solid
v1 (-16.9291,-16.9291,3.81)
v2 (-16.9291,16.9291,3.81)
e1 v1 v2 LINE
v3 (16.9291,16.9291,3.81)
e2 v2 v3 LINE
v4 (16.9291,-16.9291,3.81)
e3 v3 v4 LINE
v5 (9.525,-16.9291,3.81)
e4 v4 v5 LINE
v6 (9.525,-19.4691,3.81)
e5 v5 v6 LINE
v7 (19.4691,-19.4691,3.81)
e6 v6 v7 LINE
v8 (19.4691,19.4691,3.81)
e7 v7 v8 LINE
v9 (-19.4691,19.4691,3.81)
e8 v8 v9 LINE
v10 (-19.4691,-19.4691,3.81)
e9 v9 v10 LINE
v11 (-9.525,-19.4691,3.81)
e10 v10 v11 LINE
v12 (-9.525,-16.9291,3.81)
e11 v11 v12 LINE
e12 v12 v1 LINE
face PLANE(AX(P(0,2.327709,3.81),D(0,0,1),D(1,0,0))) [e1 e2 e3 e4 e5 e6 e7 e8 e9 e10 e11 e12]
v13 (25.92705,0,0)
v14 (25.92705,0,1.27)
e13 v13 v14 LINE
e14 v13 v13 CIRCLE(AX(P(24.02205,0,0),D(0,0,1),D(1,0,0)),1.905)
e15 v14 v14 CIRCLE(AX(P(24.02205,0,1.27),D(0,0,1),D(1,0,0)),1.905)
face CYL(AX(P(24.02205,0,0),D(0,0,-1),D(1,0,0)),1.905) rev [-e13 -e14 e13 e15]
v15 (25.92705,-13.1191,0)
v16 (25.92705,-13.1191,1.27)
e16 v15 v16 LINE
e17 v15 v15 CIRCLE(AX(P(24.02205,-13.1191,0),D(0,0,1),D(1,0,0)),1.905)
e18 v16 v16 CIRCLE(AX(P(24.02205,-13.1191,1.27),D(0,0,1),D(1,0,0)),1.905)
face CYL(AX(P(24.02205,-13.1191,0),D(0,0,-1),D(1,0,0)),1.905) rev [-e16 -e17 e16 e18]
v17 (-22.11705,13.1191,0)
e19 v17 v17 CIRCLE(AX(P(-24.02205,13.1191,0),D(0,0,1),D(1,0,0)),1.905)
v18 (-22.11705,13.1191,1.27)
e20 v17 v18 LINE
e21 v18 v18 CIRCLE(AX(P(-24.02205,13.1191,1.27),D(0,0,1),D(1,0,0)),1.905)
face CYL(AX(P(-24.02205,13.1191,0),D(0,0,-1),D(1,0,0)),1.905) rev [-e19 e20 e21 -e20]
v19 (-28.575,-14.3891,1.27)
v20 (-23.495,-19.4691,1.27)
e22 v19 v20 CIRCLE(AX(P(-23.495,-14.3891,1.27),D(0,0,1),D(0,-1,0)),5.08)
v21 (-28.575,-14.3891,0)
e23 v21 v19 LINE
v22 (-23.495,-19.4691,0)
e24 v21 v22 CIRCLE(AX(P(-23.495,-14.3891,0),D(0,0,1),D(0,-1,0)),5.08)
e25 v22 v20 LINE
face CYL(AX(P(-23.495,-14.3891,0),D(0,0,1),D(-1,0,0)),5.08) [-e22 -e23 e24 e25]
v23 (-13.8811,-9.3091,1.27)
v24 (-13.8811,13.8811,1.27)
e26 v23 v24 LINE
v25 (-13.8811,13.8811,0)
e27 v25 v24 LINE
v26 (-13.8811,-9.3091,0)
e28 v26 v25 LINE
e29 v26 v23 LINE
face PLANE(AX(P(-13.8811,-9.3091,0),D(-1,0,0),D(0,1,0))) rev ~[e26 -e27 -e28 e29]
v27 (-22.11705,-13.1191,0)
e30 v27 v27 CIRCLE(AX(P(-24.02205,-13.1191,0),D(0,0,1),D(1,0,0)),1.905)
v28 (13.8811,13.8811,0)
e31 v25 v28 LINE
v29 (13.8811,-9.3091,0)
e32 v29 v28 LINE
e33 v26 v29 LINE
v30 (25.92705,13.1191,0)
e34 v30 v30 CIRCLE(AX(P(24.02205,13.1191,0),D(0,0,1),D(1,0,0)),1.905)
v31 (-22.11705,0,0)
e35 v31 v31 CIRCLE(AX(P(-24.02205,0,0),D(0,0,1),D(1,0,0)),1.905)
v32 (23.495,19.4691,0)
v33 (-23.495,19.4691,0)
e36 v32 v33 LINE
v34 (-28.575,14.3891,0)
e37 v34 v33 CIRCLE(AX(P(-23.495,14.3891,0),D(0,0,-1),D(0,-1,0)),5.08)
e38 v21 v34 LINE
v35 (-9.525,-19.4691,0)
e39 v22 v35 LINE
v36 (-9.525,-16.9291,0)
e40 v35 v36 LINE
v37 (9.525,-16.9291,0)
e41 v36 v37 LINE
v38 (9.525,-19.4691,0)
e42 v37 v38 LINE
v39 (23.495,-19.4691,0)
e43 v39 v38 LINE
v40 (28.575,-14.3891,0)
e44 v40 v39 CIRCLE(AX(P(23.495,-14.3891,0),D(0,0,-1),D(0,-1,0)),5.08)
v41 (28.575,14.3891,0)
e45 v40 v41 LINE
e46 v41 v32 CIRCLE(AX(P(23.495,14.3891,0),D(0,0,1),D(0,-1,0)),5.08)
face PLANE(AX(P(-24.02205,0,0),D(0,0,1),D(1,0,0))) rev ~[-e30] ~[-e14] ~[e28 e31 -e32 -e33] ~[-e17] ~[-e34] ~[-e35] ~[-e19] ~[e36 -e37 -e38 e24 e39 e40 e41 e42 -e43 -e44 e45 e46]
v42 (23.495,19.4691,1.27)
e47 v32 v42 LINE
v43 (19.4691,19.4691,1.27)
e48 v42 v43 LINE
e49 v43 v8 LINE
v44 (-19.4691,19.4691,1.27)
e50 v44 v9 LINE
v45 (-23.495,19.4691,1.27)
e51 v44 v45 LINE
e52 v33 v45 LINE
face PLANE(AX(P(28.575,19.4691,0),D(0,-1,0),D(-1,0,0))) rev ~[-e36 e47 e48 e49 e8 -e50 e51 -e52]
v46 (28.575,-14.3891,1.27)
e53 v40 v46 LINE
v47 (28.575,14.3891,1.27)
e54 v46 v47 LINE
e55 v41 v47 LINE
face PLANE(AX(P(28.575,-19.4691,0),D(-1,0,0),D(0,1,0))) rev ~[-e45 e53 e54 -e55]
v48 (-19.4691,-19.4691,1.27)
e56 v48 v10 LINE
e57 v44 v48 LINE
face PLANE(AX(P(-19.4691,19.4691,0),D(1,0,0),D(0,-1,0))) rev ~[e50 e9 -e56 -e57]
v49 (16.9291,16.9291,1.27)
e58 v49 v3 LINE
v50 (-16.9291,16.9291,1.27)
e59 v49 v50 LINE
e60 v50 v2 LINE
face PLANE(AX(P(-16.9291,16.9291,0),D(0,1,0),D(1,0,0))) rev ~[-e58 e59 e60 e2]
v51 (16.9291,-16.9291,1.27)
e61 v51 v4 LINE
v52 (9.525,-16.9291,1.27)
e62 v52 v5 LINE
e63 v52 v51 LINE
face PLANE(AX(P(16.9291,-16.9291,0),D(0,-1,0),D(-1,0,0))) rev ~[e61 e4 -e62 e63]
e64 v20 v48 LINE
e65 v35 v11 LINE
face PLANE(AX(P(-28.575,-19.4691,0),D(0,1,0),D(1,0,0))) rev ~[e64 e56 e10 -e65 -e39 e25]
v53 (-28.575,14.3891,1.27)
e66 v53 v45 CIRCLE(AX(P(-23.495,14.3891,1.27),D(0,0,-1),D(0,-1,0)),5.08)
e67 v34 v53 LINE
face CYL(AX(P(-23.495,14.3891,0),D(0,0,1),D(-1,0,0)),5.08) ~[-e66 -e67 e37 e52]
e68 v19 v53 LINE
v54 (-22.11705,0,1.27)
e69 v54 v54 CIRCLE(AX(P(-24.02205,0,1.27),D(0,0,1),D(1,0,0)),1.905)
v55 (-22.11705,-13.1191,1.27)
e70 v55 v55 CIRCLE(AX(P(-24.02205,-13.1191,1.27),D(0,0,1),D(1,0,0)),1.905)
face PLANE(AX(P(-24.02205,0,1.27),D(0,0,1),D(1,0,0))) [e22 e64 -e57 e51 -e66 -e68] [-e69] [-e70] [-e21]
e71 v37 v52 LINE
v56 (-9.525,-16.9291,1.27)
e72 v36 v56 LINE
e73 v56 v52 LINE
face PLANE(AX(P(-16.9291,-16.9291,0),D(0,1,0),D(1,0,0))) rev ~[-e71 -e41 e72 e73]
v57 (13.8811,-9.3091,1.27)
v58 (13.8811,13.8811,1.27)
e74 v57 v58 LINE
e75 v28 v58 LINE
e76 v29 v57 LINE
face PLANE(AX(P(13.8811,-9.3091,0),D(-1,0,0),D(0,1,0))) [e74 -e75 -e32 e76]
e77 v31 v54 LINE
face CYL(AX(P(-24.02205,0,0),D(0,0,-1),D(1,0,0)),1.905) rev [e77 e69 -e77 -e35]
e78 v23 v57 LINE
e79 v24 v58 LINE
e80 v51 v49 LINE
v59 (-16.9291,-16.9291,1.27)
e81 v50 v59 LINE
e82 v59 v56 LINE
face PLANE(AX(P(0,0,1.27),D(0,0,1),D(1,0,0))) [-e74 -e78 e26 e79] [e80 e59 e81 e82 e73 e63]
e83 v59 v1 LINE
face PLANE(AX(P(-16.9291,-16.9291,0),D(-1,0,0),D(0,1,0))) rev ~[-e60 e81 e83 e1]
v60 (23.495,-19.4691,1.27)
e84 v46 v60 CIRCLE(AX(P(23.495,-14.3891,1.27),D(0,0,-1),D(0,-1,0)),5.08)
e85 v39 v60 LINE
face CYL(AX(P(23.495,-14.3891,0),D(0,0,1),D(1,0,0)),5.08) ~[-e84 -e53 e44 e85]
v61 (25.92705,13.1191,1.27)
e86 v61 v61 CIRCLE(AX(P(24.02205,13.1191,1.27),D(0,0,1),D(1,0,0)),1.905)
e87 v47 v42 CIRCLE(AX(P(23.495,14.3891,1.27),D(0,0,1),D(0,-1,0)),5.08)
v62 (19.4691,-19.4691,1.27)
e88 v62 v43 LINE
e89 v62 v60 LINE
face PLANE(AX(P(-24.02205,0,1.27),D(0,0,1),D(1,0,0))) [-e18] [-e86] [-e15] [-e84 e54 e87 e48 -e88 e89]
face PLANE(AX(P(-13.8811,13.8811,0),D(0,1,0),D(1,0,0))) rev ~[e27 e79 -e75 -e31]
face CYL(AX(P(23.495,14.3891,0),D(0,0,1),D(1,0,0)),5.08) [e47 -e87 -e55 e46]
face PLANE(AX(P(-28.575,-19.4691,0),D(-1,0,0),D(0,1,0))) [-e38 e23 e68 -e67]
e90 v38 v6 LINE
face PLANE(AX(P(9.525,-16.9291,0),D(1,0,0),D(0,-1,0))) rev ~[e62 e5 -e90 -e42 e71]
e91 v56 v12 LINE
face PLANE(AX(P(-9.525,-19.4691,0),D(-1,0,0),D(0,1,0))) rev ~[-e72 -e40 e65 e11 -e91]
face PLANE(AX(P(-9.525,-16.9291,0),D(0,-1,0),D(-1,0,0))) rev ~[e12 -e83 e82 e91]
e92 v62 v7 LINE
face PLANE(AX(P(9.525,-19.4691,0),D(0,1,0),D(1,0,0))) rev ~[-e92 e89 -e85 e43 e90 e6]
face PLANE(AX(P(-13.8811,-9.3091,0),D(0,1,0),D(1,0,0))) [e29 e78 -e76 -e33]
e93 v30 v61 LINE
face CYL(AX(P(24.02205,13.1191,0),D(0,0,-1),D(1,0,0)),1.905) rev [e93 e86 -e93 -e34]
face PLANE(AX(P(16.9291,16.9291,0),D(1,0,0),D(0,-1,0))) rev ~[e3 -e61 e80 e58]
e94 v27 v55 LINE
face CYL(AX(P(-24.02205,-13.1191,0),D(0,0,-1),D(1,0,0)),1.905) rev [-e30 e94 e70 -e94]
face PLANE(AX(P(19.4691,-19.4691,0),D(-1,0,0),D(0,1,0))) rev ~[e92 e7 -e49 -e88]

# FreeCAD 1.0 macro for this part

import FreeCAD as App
import Part
import Sketcher
Q = App.Units.Quantity


def edges_at(feature, points):
    """Names of the edges that pass closest to the given points."""
    edges = feature.Shape.Edges
    near = lambda p: min(range(len(edges)), key=lambda i: edges[i].distToShape(Part.Vertex(*p))[0])
    return sorted({f"Edge{near(p) + 1}" for p in points})


def add_polygon(sketch, points):
    """Adds a closed chain of lines whose ends are joined by coincident constraints."""
    first, n = sketch.GeometryCount, len(points)
    for a, b in zip(points, points[1:] + points[:1]):
        sketch.addGeometry(Part.LineSegment(App.Vector(*a, 0), App.Vector(*b, 0)), False)
    for i in range(n):
        sketch.addConstraint(Sketcher.Constraint("Coincident", first + i, 2, first + (i + 1) % n, 1))

doc = App.newDocument("Part")
body = doc.addObject("PartDesign::Body", "Body")

sketch1 = body.newObject("Sketcher::SketchObject", "Sketch")
sketch1.AttachmentSupport = (doc.getObject("XY_Plane"), [""])
sketch1.MapMode = "FlatFace"
add_polygon(sketch1, [(17, -17), (17, 17), (-17, 17), (-17, -17)])
add_polygon(sketch1, [(14, -9), (-14, -9), (-14, 14), (14, 14)])
sketch1.addConstraint([
    Sketcher.Constraint("Vertical", 0),
    Sketcher.Constraint("Horizontal", 1),
    Sketcher.Constraint("Vertical", 2),
    Sketcher.Constraint("Horizontal", 3),
    Sketcher.Constraint("Horizontal", 4),
    Sketcher.Constraint("Vertical", 5),
    Sketcher.Constraint("Horizontal", 6),
    Sketcher.Constraint("Vertical", 7),
    Sketcher.Constraint("Symmetric", 0, 2, 2, 2, -1, 1),
    Sketcher.Constraint("Equal", 3, 0),
    Sketcher.Constraint("DistanceY", 2, 2, 4, 2, Q("0.3 in")),
    Sketcher.Constraint("DistanceX", 1, 2, 1, 1, Q("1.333 in")),
    Sketcher.Constraint("DistanceX", 4, 2, 4, 1, Q("1.093 in")),
    Sketcher.Constraint("DistanceY", 5, 1, 5, 2, Q("0.913 in")),
    Sketcher.Constraint("DistanceX", 2, 2, 4, 2, Q("0.12 in")),
])
pad1 = body.newObject("PartDesign::Pad", "Pad")
pad1.Profile = sketch1
pad1.Length = Q("0.05 in")

sketch2 = body.newObject("Sketcher::SketchObject", "Sketch001")
sketch2.AttachmentSupport = (doc.getObject("XY_Plane"), [""])
sketch2.MapMode = "FlatFace"
add_polygon(sketch2, [(-16.9, 16.9), (16.9, 16.9), (16.9, -16.9), (9.5, -16.9), (9.5, -19.5), (19.5, -19.5), (19.5, 19.5), (-19.5, 19.5), (-19.5, -19.5), (-9.5, -19.5), (-9.5, -16.9), (-16.9, -16.9)])
sketch2.addConstraint([
    Sketcher.Constraint("Horizontal", 0),
    Sketcher.Constraint("Vertical", 1),
    Sketcher.Constraint("Horizontal", 2),
    Sketcher.Constraint("Vertical", 3),
    Sketcher.Constraint("Horizontal", 4),
    Sketcher.Constraint("Vertical", 5),
    Sketcher.Constraint("Horizontal", 6),
    Sketcher.Constraint("Vertical", 7),
    Sketcher.Constraint("Horizontal", 8),
    Sketcher.Constraint("Vertical", 9),
    Sketcher.Constraint("Horizontal", 10),
    Sketcher.Constraint("Vertical", 11),
    Sketcher.Constraint("Symmetric", 4, 2, 6, 2, -1, 1),
    Sketcher.Constraint("Symmetric", 0, 2, 10, 2, -1, 1),
    Sketcher.Constraint("Symmetric", 3, 2, 8, 2, -2),
    Sketcher.Constraint("Horizontal", 2, 2, 9, 2),
    Sketcher.Constraint("Equal", 0, 1),
    Sketcher.Constraint("Equal", 6, 5),
    Sketcher.Constraint("DistanceY", 3, 2, 3, 1, Q("0.1 in")),
    Sketcher.Constraint("DistanceX", 0, 1, 0, 2, Q("1.333 in")),
    Sketcher.Constraint("DistanceX", 8, 2, 3, 2, Q("0.75 in")),
])
pad2 = body.newObject("PartDesign::Pad", "Pad001")
pad2.Profile = sketch2
pad2.Length = Q("0.15 in")

sketch3 = body.newObject("Sketcher::SketchObject", "Sketch002")
sketch3.AttachmentSupport = (doc.getObject("XY_Plane"), [""])
sketch3.MapMode = "FlatFace"
add_polygon(sketch3, [(-28.6, 19.5), (-28.6, -19.5), (-9.5, -19.5), (-9.5, -16.9), (9.5, -16.9), (9.5, -19.5), (28.6, -19.5), (28.6, 19.5)])
sketch3.addGeometry(Part.Circle(App.Vector(-24, -13.1, 0), App.Vector(0, 0, 1), 1.9), False)
sketch3.addGeometry(Part.Circle(App.Vector(24, -13.1, 0), App.Vector(0, 0, 1), 1.9), False)
sketch3.addGeometry(Part.Circle(App.Vector(-24, 0, 0), App.Vector(0, 0, 1), 1.9), False)
sketch3.addGeometry(Part.Circle(App.Vector(-24, 13.1, 0), App.Vector(0, 0, 1), 1.9), False)
add_polygon(sketch3, [(13.9, -9.3), (-13.9, -9.3), (-13.9, 13.9), (13.9, 13.9)])
sketch3.addGeometry(Part.Circle(App.Vector(24, 0, 0), App.Vector(0, 0, 1), 1.9), False)
sketch3.addGeometry(Part.Circle(App.Vector(24, 13.1, 0), App.Vector(0, 0, 1), 1.9), False)
sketch3.addConstraint([
    Sketcher.Constraint("Vertical", 0),
    Sketcher.Constraint("Horizontal", 1),
    Sketcher.Constraint("Vertical", 2),
    Sketcher.Constraint("Horizontal", 3),
    Sketcher.Constraint("Vertical", 4),
    Sketcher.Constraint("Horizontal", 5),
    Sketcher.Constraint("Vertical", 6),
    Sketcher.Constraint("Horizontal", 7),
    Sketcher.Constraint("Horizontal", 12),
    Sketcher.Constraint("Vertical", 13),
    Sketcher.Constraint("Horizontal", 14),
    Sketcher.Constraint("Vertical", 15),
    Sketcher.Constraint("Equal", 8, 9),
    Sketcher.Constraint("Equal", 9, 10),
    Sketcher.Constraint("Equal", 10, 11),
    Sketcher.Constraint("Equal", 11, 16),
    Sketcher.Constraint("Equal", 16, 17),
    Sketcher.Constraint("Symmetric", 9, 3, 11, 3, -1, 1),
    Sketcher.Constraint("Symmetric", 10, 3, 16, 3, -1, 1),
    Sketcher.Constraint("Symmetric", 8, 3, 17, 3, -1, 1),
    Sketcher.Constraint("Symmetric", 0, 2, 6, 2, -1, 1),
    Sketcher.Constraint("Symmetric", 8, 3, 9, 3, -2),
    Sketcher.Constraint("Symmetric", 1, 2, 4, 2, -2),
    Sketcher.Constraint("PointOnObject", 10, 3, -1),
    Sketcher.Constraint("Vertical", 8, 3, 10, 3),
    Sketcher.Constraint("Equal", 1, 3),
    Sketcher.Constraint("Diameter", 8, Q("0.15 in")),
    Sketcher.Constraint("DistanceY", 2, 1, 2, 2, Q("0.1 in")),
    Sketcher.Constraint("DistanceX", 1, 1, 1, 2, Q("0.75 in")),
    Sketcher.Constraint("DistanceY", 2, 2, 12, 2, Q("0.3 in")),
    Sketcher.Constraint("DistanceX", 12, 2, 12, 1, Q("1.093 in")),
    Sketcher.Constraint("DistanceY", 0, 2, 0, 1, Q("1.533 in")),
    Sketcher.Constraint("DistanceY", 13, 1, 13, 2, Q("0.913 in")),
    Sketcher.Constraint("DistanceY", 0, 2, 8, 3, Q("0.25 in")),
    Sketcher.Constraint("DistanceX", 12, 2, -1, 1, Q("0.5465 in")),
    Sketcher.Constraint("DistanceX", 8, 3, 9, 3, Q("1.8915 in")),
])
pad3 = body.newObject("PartDesign::Pad", "Pad002")
pad3.Profile = sketch3
pad3.Length = Q("0.05 in")
doc.recompute()

fillet = body.newObject("PartDesign::Fillet", "Fillet")
fillet.Base = (pad3, edges_at(pad3, [
    (-28.575, 19.469, 0.635),
    (-28.575, -19.469, 0.635),
    (28.575, 19.469, 0.635),
    (28.575, -19.469, 0.635),
]))
fillet.Radius = Q("0.2 in")

doc.recompute()
